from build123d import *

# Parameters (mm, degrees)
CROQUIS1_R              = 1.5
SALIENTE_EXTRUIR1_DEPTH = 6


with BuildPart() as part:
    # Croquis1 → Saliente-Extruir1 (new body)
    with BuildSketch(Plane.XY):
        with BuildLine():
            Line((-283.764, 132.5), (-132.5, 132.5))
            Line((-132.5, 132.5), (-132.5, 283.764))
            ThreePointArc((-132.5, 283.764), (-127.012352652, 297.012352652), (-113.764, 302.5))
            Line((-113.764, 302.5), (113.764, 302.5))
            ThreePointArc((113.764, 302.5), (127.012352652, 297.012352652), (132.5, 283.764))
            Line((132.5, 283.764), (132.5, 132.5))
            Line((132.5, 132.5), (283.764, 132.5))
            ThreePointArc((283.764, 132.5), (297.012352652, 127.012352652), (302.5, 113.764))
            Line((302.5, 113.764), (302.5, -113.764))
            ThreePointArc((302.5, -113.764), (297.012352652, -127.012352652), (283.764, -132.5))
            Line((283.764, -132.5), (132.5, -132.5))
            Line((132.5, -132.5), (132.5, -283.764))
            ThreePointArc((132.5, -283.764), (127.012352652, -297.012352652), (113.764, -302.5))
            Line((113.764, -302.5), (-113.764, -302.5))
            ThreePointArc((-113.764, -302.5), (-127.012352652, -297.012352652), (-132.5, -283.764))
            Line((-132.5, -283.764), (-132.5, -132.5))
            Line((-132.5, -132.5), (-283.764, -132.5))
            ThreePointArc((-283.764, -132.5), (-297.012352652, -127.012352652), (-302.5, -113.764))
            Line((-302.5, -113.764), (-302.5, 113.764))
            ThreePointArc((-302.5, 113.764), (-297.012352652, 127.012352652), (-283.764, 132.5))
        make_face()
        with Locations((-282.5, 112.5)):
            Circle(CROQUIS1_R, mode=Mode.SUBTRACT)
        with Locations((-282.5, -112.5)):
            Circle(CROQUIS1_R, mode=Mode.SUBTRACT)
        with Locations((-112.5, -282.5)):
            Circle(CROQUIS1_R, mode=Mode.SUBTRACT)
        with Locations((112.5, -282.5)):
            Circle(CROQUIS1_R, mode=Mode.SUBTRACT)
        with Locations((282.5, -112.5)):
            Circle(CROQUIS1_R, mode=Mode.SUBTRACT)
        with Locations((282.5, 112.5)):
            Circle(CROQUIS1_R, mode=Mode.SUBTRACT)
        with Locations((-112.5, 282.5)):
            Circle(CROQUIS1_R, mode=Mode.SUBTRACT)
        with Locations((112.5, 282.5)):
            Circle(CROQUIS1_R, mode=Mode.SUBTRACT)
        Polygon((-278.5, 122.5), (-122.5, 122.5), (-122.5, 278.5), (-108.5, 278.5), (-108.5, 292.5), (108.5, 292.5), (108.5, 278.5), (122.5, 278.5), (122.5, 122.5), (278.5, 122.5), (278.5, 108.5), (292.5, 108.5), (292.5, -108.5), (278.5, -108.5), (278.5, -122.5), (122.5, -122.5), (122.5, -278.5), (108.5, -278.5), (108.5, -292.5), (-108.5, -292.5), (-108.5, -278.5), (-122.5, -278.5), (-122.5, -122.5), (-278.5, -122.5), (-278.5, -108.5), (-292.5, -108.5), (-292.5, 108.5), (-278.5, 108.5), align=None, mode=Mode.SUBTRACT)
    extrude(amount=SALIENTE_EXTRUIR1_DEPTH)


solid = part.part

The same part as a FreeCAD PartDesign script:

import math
import FreeCAD as App
import Part
import Sketcher
Q = App.Units.Quantity

doc = App.newDocument("Part")
body = doc.addObject("PartDesign::Body", "Body")

# Sketch on XY plane
sketch1 = body.newObject("Sketcher::SketchObject", "Sketch")
sketch1.AttachmentSupport = (doc.getObject("XY_Plane"), [""])
sketch1.MapMode = "FlatFace"
sketch1.addGeometry([
    Part.LineSegment(App.Vector(-132.5, 132.5, 0), App.Vector(-283.8, 132.5, 0)),  # 0
    Part.ArcOfCircle(Part.Circle(App.Vector(-283.8, 113.8, 0), App.Vector(0, 0, 1), 18.7), math.radians(90), math.radians(180)),  # 1
    Part.LineSegment(App.Vector(-302.5, 113.8, 0), App.Vector(-302.5, -113.8, 0)),  # 2
    Part.ArcOfCircle(Part.Circle(App.Vector(-283.8, -113.8, 0), App.Vector(0, 0, 1), 18.7), math.radians(-180), math.radians(-90)),  # 3
    Part.LineSegment(App.Vector(-283.8, -132.5, 0), App.Vector(-132.5, -132.5, 0)),  # 4
    Part.LineSegment(App.Vector(-132.5, -132.5, 0), App.Vector(-132.5, -283.8, 0)),  # 5
    Part.ArcOfCircle(Part.Circle(App.Vector(-113.8, -283.8, 0), App.Vector(0, 0, 1), 18.7), math.radians(-180), math.radians(-90)),  # 6
    Part.LineSegment(App.Vector(-113.8, -302.5, 0), App.Vector(113.8, -302.5, 0)),  # 7
    Part.ArcOfCircle(Part.Circle(App.Vector(113.8, -283.8, 0), App.Vector(0, 0, 1), 18.7), math.radians(-90), math.radians(0)),  # 8
    Part.LineSegment(App.Vector(132.5, -283.8, 0), App.Vector(132.5, -132.5, 0)),  # 9
    Part.LineSegment(App.Vector(132.5, -132.5, 0), App.Vector(283.8, -132.5, 0)),  # 10
    Part.ArcOfCircle(Part.Circle(App.Vector(283.8, -113.8, 0), App.Vector(0, 0, 1), 18.7), math.radians(-90), math.radians(0)),  # 11
    Part.LineSegment(App.Vector(302.5, -113.8, 0), App.Vector(302.5, 113.8, 0)),  # 12
    Part.ArcOfCircle(Part.Circle(App.Vector(283.8, 113.8, 0), App.Vector(0, 0, 1), 18.7), math.radians(0), math.radians(90)),  # 13
    Part.LineSegment(App.Vector(283.8, 132.5, 0), App.Vector(132.5, 132.5, 0)),  # 14
    Part.LineSegment(App.Vector(132.5, 132.5, 0), App.Vector(132.5, 283.8, 0)),  # 15
    Part.ArcOfCircle(Part.Circle(App.Vector(113.8, 283.8, 0), App.Vector(0, 0, 1), 18.7), math.radians(0), math.radians(90)),  # 16
    Part.LineSegment(App.Vector(113.8, 302.5, 0), App.Vector(-113.8, 302.5, 0)),  # 17
    Part.ArcOfCircle(Part.Circle(App.Vector(-113.8, 283.8, 0), App.Vector(0, 0, 1), 18.7), math.radians(90), math.radians(180)),  # 18
    Part.LineSegment(App.Vector(-132.5, 283.8, 0), App.Vector(-132.5, 132.5, 0)),  # 19
    Part.Circle(App.Vector(112.5, -282.5, 0), App.Vector(0, 0, 1), 1.5),  # 20
    Part.Circle(App.Vector(282.5, -112.5, 0), App.Vector(0, 0, 1), 1.5),  # 21
    Part.Circle(App.Vector(-112.5, -282.5, 0), App.Vector(0, 0, 1), 1.5),  # 22
    Part.Circle(App.Vector(-282.5, -112.5, 0), App.Vector(0, 0, 1), 1.5),  # 23
    Part.Circle(App.Vector(282.5, 112.5, 0), App.Vector(0, 0, 1), 1.5),  # 24
    Part.Circle(App.Vector(112.5, 282.5, 0), App.Vector(0, 0, 1), 1.5),  # 25
    Part.LineSegment(App.Vector(-278.5, 122.5, 0), App.Vector(-122.5, 122.5, 0)),  # 26
    Part.LineSegment(App.Vector(-122.5, 122.5, 0), App.Vector(-122.5, 278.5, 0)),  # 27
    Part.LineSegment(App.Vector(-122.5, 278.5, 0), App.Vector(-108.5, 278.5, 0)),  # 28
    Part.LineSegment(App.Vector(-108.5, 278.5, 0), App.Vector(-108.5, 292.5, 0)),  # 29
    Part.LineSegment(App.Vector(-108.5, 292.5, 0), App.Vector(108.5, 292.5, 0)),  # 30
    Part.LineSegment(App.Vector(108.5, 292.5, 0), App.Vector(108.5, 278.5, 0)),  # 31
    Part.LineSegment(App.Vector(108.5, 278.5, 0), App.Vector(122.5, 278.5, 0)),  # 32
    Part.LineSegment(App.Vector(122.5, 278.5, 0), App.Vector(122.5, 122.5, 0)),  # 33
    Part.LineSegment(App.Vector(122.5, 122.5, 0), App.Vector(278.5, 122.5, 0)),  # 34
    Part.LineSegment(App.Vector(278.5, 122.5, 0), App.Vector(278.5, 108.5, 0)),  # 35
    Part.LineSegment(App.Vector(278.5, 108.5, 0), App.Vector(292.5, 108.5, 0)),  # 36
    Part.LineSegment(App.Vector(292.5, 108.5, 0), App.Vector(292.5, -108.5, 0)),  # 37
    Part.LineSegment(App.Vector(292.5, -108.5, 0), App.Vector(278.5, -108.5, 0)),  # 38
    Part.LineSegment(App.Vector(278.5, -108.5, 0), App.Vector(278.5, -122.5, 0)),  # 39
    Part.LineSegment(App.Vector(278.5, -122.5, 0), App.Vector(122.5, -122.5, 0)),  # 40
    Part.LineSegment(App.Vector(122.5, -122.5, 0), App.Vector(122.5, -278.5, 0)),  # 41
    Part.LineSegment(App.Vector(122.5, -278.5, 0), App.Vector(108.5, -278.5, 0)),  # 42
    Part.LineSegment(App.Vector(108.5, -278.5, 0), App.Vector(108.5, -292.5, 0)),  # 43
    Part.LineSegment(App.Vector(108.5, -292.5, 0), App.Vector(-108.5, -292.5, 0)),  # 44
    Part.LineSegment(App.Vector(-108.5, -292.5, 0), App.Vector(-108.5, -278.5, 0)),  # 45
    Part.LineSegment(App.Vector(-108.5, -278.5, 0), App.Vector(-122.5, -278.5, 0)),  # 46
    Part.LineSegment(App.Vector(-122.5, -278.5, 0), App.Vector(-122.5, -122.5, 0)),  # 47
    Part.LineSegment(App.Vector(-122.5, -122.5, 0), App.Vector(-278.5, -122.5, 0)),  # 48
    Part.LineSegment(App.Vector(-278.5, -122.5, 0), App.Vector(-278.5, -108.5, 0)),  # 49
    Part.LineSegment(App.Vector(-278.5, -108.5, 0), App.Vector(-292.5, -108.5, 0)),  # 50
    Part.LineSegment(App.Vector(-292.5, -108.5, 0), App.Vector(-292.5, 108.5, 0)),  # 51
    Part.LineSegment(App.Vector(-292.5, 108.5, 0), App.Vector(-278.5, 108.5, 0)),  # 52
    Part.LineSegment(App.Vector(-278.5, 108.5, 0), App.Vector(-278.5, 122.5, 0)),  # 53
    Part.Circle(App.Vector(-282.5, 112.5, 0), App.Vector(0, 0, 1), 1.5),  # 54
    Part.Circle(App.Vector(-112.5, 282.5, 0), App.Vector(0, 0, 1), 1.5),  # 55
], False)
sketch1.addConstraint([
    Sketcher.Constraint("Tangent", 0, 2, 1, 1),
    Sketcher.Constraint("Tangent", 1, 2, 2, 1),
    Sketcher.Constraint("Tangent", 2, 2, 3, 1),
    Sketcher.Constraint("Tangent", 3, 2, 4, 1),
    Sketcher.Constraint("Coincident", 4, 2, 5, 1),
    Sketcher.Constraint("Tangent", 5, 2, 6, 1),
    Sketcher.Constraint("Tangent", 6, 2, 7, 1),
    Sketcher.Constraint("Tangent", 7, 2, 8, 1),
    Sketcher.Constraint("Tangent", 8, 2, 9, 1),
    Sketcher.Constraint("Coincident", 9, 2, 10, 1),
    Sketcher.Constraint("Tangent", 10, 2, 11, 1),
    Sketcher.Constraint("Tangent", 11, 2, 12, 1),
    Sketcher.Constraint("Tangent", 12, 2, 13, 1),
    Sketcher.Constraint("Tangent", 13, 2, 14, 1),
    Sketcher.Constraint("Coincident", 14, 2, 15, 1),
    Sketcher.Constraint("Tangent", 15, 2, 16, 1),
    Sketcher.Constraint("Tangent", 16, 2, 17, 1),
    Sketcher.Constraint("Tangent", 17, 2, 18, 1),
    Sketcher.Constraint("Tangent", 18, 2, 19, 1),
    Sketcher.Constraint("Coincident", 19, 2, 0, 1),
    Sketcher.Constraint("Coincident", 26, 2, 27, 1),
    Sketcher.Constraint("Coincident", 27, 2, 28, 1),
    Sketcher.Constraint("Coincident", 28, 2, 29, 1),
    Sketcher.Constraint("Coincident", 29, 2, 30, 1),
    Sketcher.Constraint("Coincident", 30, 2, 31, 1),
    Sketcher.Constraint("Coincident", 31, 2, 32, 1),
    Sketcher.Constraint("Coincident", 32, 2, 33, 1),
    Sketcher.Constraint("Coincident", 33, 2, 34, 1),
    Sketcher.Constraint("Coincident", 34, 2, 35, 1),
    Sketcher.Constraint("Coincident", 35, 2, 36, 1),
    Sketcher.Constraint("Coincident", 36, 2, 37, 1),
    Sketcher.Constraint("Coincident", 37, 2, 38, 1),
    Sketcher.Constraint("Coincident", 38, 2, 39, 1),
    Sketcher.Constraint("Coincident", 39, 2, 40, 1),
    Sketcher.Constraint("Coincident", 40, 2, 41, 1),
    Sketcher.Constraint("Coincident", 41, 2, 42, 1),
    Sketcher.Constraint("Coincident", 42, 2, 43, 1),
    Sketcher.Constraint("Coincident", 43, 2, 44, 1),
    Sketcher.Constraint("Coincident", 44, 2, 45, 1),
    Sketcher.Constraint("Coincident", 45, 2, 46, 1),
    Sketcher.Constraint("Coincident", 46, 2, 47, 1),
    Sketcher.Constraint("Coincident", 47, 2, 48, 1),
    Sketcher.Constraint("Coincident", 48, 2, 49, 1),
    Sketcher.Constraint("Coincident", 49, 2, 50, 1),
    Sketcher.Constraint("Coincident", 50, 2, 51, 1),
    Sketcher.Constraint("Coincident", 51, 2, 52, 1),
    Sketcher.Constraint("Coincident", 52, 2, 53, 1),
    Sketcher.Constraint("Coincident", 53, 2, 26, 1),
    Sketcher.Constraint("Horizontal", 0),
    Sketcher.Constraint("Vertical", 2),
    Sketcher.Constraint("Horizontal", 4),
    Sketcher.Constraint("Vertical", 5),
    Sketcher.Constraint("Horizontal", 7),
    Sketcher.Constraint("Vertical", 9),
    Sketcher.Constraint("Horizontal", 10),
    Sketcher.Constraint("Vertical", 12),
    Sketcher.Constraint("Horizontal", 14),
    Sketcher.Constraint("Vertical", 15),
    Sketcher.Constraint("Horizontal", 17),
    Sketcher.Constraint("Vertical", 19),
    Sketcher.Constraint("Horizontal", 26),
    Sketcher.Constraint("Vertical", 27),
    Sketcher.Constraint("Horizontal", 28),
    Sketcher.Constraint("Vertical", 29),
    Sketcher.Constraint("Horizontal", 30),
    Sketcher.Constraint("Vertical", 31),
    Sketcher.Constraint("Horizontal", 32),
    Sketcher.Constraint("Vertical", 33),
    Sketcher.Constraint("Horizontal", 34),
    Sketcher.Constraint("Vertical", 35),
    Sketcher.Constraint("Horizontal", 36),
    Sketcher.Constraint("Vertical", 37),
    Sketcher.Constraint("Horizontal", 38),
    Sketcher.Constraint("Vertical", 39),
    Sketcher.Constraint("Horizontal", 40),
    Sketcher.Constraint("Vertical", 41),
    Sketcher.Constraint("Horizontal", 42),
    Sketcher.Constraint("Vertical", 43),
    Sketcher.Constraint("Horizontal", 44),
    Sketcher.Constraint("Vertical", 45),
    Sketcher.Constraint("Horizontal", 46),
    Sketcher.Constraint("Vertical", 47),
    Sketcher.Constraint("Horizontal", 48),
    Sketcher.Constraint("Vertical", 49),
    Sketcher.Constraint("Horizontal", 50),
    Sketcher.Constraint("Vertical", 51),
    Sketcher.Constraint("Horizontal", 52),
    Sketcher.Constraint("Vertical", 53),
    Sketcher.Constraint("Equal", 1, 3),
    Sketcher.Constraint("Equal", 3, 6),
    Sketcher.Constraint("Equal", 6, 8),
    Sketcher.Constraint("Equal", 8, 11),
    Sketcher.Constraint("Equal", 11, 13),
    Sketcher.Constraint("Equal", 13, 16),
    Sketcher.Constraint("Equal", 16, 18),
    Sketcher.Constraint("Equal", 20, 21),
    Sketcher.Constraint("Equal", 21, 22),
    Sketcher.Constraint("Equal", 22, 23),
    Sketcher.Constraint("Equal", 23, 24),
    Sketcher.Constraint("Equal", 24, 25),
    Sketcher.Constraint("Equal", 25, 54),
    Sketcher.Constraint("Equal", 54, 55),
    Sketcher.Constraint("Symmetric", 1, 3, 11, 3, -1, 1),
    Sketcher.Constraint("Symmetric", 6, 3, 16, 3, -1, 1),
    Sketcher.Constraint("Symmetric", 23, 3, 24, 3, -1, 1),
    Sketcher.Constraint("Symmetric", 22, 3, 25, 3, -1, 1),
    Sketcher.Constraint("Symmetric", 21, 3, 54, 3, -1, 1),
    Sketcher.Constraint("Symmetric", 20, 3, 55, 3, -1, 1),
    Sketcher.Constraint("Symmetric", 26, 2, 40, 2, -1, 1),
    Sketcher.Constraint("Symmetric", 28, 2, 42, 2, -1, 1),
    Sketcher.Constraint("Symmetric", 30, 2, 44, 2, -1, 1),
    Sketcher.Constraint("Symmetric", 32, 2, 46, 2, -1, 1),
    Sketcher.Constraint("Symmetric", 34, 2, 48, 2, -1, 1),
    Sketcher.Constraint("Symmetric", 36, 2, 50, 2, -1, 1),
    Sketcher.Constraint("Symmetric", 38, 2, 52, 2, -1, 1),
    Sketcher.Constraint("Symmetric", 20, 3, 22, 3, -2),
    Sketcher.Constraint("Symmetric", 21, 3, 23, 3, -2),
    Sketcher.Constraint("Symmetric", 4, 2, 9, 2, -2),
    Sketcher.Constraint("Symmetric", 14, 2, 19, 2, -2),
    Sketcher.Constraint("Symmetric", 28, 2, 31, 2, -2),
    Sketcher.Constraint("Symmetric", 26, 2, 33, 2, -2),
    Sketcher.Constraint("Symmetric", 38, 2, 49, 2, -2),
    Sketcher.Constraint("Equal", 32, 36),
    Sketcher.Constraint("Equal", 17, 2),
    Sketcher.Constraint("Equal", 14, 5),
    Sketcher.Constraint("Equal", 48, 27),
    Sketcher.Constraint("Equal", 52, 29),
    Sketcher.Constraint("Equal", 31, 35),
    Sketcher.Constraint("Equal", 44, 37),
    Sketcher.Constraint("Diameter", 20, Q("3 mm")),
    Sketcher.Constraint("DistanceX", 26, 1, 26, 2, Q("156 mm")),
    Sketcher.Constraint("DistanceX", 28, 1, 28, 2, Q("14 mm")),
    Sketcher.Constraint("DistanceX", 30, 1, 30, 2, Q("217 mm")),
    Sketcher.Constraint("Radius", 1, Q("18.736 mm")),
    Sketcher.Constraint("DistanceX", -1, 1, 20, 3, Q("112.5 mm")),
    Sketcher.Constraint("DistanceY", 20, 3, -1, 1, Q("282.5 mm")),
    Sketcher.Constraint("DistanceX", -1, 1, 21, 3, Q("282.5 mm")),
    Sketcher.Constraint("DistanceY", 21, 3, -1, 1, Q("112.5 mm")),
    Sketcher.Constraint("DistanceY", -1, 1, 0, 2, Q("132.5 mm")),
    Sketcher.Constraint("DistanceX", 1, 2, -1, 1, Q("302.5 mm")),
])
pad1 = body.newObject("PartDesign::Pad", "Pad")
pad1.Profile = sketch1
pad1.Length = 6

doc.recompute()
